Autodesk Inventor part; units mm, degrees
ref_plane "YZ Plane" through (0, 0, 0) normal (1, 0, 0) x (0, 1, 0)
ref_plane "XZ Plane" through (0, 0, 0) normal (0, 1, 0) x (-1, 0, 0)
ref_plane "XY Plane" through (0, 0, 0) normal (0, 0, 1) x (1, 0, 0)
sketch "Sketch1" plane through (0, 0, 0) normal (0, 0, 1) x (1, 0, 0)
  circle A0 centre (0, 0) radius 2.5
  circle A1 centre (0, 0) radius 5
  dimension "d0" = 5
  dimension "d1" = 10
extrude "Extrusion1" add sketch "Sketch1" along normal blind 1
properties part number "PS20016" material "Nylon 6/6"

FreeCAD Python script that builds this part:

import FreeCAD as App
import Part
import Sketcher

doc = App.newDocument("Part")
body = doc.addObject("PartDesign::Body", "Body")

sketch1 = body.newObject("Sketcher::SketchObject", "Sketch")
sketch1.AttachmentSupport = (doc.getObject("XY_Plane"), [""])
sketch1.MapMode = "FlatFace"
sketch1.addGeometry(Part.Circle(App.Vector(0, 0, 0), App.Vector(0, 0, 1), 5), False)
sketch1.addGeometry(Part.Circle(App.Vector(0, 0, 0), App.Vector(0, 0, 1), 2.5), False)
sketch1.addConstraint(Sketcher.Constraint("Coincident", 0, 3, -1, 1))
sketch1.addConstraint(Sketcher.Constraint("Coincident", 1, 3, -1, 1))
sketch1.addConstraint(Sketcher.Constraint("Diameter", 0, 10.0))
sketch1.addConstraint(Sketcher.Constraint("Diameter", 1, 5.0))
pad1 = body.newObject("PartDesign::Pad", "Pad")
pad1.Profile = sketch1
pad1.Length = 1

doc.recompute()
